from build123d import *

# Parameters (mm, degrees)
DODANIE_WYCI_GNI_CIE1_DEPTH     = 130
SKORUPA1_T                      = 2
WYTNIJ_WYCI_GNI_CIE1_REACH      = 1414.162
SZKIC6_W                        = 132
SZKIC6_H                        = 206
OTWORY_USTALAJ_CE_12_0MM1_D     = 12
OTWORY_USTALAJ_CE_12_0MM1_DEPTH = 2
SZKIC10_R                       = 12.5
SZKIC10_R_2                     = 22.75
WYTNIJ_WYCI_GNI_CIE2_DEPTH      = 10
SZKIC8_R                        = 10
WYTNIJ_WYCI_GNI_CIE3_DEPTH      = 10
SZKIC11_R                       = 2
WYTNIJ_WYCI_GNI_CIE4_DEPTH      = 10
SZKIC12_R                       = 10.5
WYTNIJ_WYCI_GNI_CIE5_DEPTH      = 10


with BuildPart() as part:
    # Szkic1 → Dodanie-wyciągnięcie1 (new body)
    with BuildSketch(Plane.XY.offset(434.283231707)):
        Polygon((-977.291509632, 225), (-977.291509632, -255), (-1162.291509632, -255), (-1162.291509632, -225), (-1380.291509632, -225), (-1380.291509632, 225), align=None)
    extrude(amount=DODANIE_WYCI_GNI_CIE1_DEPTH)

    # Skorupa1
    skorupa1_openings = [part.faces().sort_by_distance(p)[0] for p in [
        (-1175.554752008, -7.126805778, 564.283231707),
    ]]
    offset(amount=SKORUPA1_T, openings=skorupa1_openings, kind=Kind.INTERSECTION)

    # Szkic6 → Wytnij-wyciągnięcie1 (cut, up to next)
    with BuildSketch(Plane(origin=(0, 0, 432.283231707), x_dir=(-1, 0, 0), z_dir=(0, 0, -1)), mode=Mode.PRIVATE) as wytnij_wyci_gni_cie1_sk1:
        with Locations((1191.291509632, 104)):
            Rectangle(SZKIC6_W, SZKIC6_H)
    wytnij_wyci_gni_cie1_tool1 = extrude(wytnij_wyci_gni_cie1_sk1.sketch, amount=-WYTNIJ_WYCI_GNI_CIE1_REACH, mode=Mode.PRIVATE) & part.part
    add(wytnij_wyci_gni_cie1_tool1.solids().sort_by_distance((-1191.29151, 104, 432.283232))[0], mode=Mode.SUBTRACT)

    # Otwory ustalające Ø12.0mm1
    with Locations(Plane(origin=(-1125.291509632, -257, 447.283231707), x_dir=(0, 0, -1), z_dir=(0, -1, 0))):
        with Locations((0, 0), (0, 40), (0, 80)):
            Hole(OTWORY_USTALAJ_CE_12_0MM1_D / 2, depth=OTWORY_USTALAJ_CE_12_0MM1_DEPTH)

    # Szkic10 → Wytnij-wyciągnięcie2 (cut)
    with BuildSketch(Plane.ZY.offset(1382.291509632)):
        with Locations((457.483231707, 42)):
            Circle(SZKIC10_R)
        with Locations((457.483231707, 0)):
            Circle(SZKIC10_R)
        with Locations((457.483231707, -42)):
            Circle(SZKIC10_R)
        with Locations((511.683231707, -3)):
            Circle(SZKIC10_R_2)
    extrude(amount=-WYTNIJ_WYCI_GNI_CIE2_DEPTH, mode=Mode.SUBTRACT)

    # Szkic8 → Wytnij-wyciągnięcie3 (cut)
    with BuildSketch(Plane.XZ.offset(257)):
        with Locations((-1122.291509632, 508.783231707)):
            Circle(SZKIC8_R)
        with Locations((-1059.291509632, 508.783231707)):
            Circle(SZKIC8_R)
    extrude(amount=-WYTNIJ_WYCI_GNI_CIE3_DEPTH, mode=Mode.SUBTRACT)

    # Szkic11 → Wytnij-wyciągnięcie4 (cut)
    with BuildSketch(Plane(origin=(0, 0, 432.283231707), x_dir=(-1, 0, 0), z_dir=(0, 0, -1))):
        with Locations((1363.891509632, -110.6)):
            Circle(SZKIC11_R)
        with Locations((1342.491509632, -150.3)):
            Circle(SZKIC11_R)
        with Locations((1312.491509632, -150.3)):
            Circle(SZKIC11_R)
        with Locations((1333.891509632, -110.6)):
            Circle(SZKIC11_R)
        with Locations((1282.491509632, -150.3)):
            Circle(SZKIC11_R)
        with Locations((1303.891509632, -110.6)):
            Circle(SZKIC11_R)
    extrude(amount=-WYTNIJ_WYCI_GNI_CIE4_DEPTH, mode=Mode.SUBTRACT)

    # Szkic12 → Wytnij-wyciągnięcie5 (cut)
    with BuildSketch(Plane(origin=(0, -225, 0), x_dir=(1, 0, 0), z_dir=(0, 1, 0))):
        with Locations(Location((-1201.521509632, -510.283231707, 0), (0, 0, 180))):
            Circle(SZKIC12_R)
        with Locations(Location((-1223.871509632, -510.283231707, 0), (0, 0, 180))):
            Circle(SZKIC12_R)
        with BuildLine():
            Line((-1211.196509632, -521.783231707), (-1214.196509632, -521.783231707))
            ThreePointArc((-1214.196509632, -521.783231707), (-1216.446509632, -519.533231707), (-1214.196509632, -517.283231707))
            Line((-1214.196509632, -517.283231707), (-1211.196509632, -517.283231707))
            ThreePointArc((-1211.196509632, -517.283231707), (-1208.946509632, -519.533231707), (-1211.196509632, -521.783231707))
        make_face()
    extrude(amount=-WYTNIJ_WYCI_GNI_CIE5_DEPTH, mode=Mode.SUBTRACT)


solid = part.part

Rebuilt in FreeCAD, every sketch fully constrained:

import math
import FreeCAD as App
import Part
import Sketcher
Q = App.Units.Quantity


def faces_at(feature, points):
    """Names of the faces that lie closest to the given points."""
    faces = feature.Shape.Faces
    near = lambda p: min(range(len(faces)), key=lambda i: faces[i].distToShape(Part.Vertex(*p))[0])
    return sorted({f"Face{near(p) + 1}" for p in points})

doc = App.newDocument("Part")
body = doc.addObject("PartDesign::Body", "Body")

# Sketch on XY plane
sketch1 = doc.addObject("Sketcher::SketchObject", "Sketch")
body.addObject(sketch1)
sketch1.AttachmentSupport = (doc.XY_Plane, [""])
sketch1.MapMode = "FlatFace"
sketch1.AttachmentOffset = App.Placement(App.Vector(0, 0, 434.283232), App.Rotation())
sketch1.addGeometry([
    Part.LineSegment(App.Vector(-977, -255, 0), App.Vector(-977, 225, 0)),  # 0
    Part.LineSegment(App.Vector(-977, 225, 0), App.Vector(-1380, 225, 0)),  # 1
    Part.LineSegment(App.Vector(-1380, 225, 0), App.Vector(-1380, -225, 0)),  # 2
    Part.LineSegment(App.Vector(-1380, -225, 0), App.Vector(-1162, -225, 0)),  # 3
    Part.LineSegment(App.Vector(-1162, -225, 0), App.Vector(-1162, -255, 0)),  # 4
    Part.LineSegment(App.Vector(-1162, -255, 0), App.Vector(-977, -255, 0)),  # 5
], False)
sketch1.addConstraint([
    Sketcher.Constraint("Coincident", 0, 2, 1, 1),
    Sketcher.Constraint("Coincident", 1, 2, 2, 1),
    Sketcher.Constraint("Coincident", 2, 2, 3, 1),
    Sketcher.Constraint("Coincident", 3, 2, 4, 1),
    Sketcher.Constraint("Coincident", 4, 2, 5, 1),
    Sketcher.Constraint("Coincident", 5, 2, 0, 1),
    Sketcher.Constraint("Vertical", 0),
    Sketcher.Constraint("Horizontal", 1),
    Sketcher.Constraint("Vertical", 2),
    Sketcher.Constraint("Horizontal", 3),
    Sketcher.Constraint("Vertical", 4),
    Sketcher.Constraint("Horizontal", 5),
    Sketcher.Constraint("DistanceX", 1, 2, 1, 1, Q("403 mm")),
    Sketcher.Constraint("DistanceX", 3, 1, 3, 2, Q("218 mm")),
    Sketcher.Constraint("DistanceY", 0, 1, 0, 2, Q("480 mm")),
    Sketcher.Constraint("DistanceY", 2, 2, 2, 1, Q("450 mm")),
    Sketcher.Constraint("DistanceY", -1, 1, 0, 2, Q("225 mm")),
    Sketcher.Constraint("DistanceX", 0, 2, -1, 1, Q("977.29151 mm")),
])
pad1 = doc.addObject("PartDesign::Pad", "Pad")
body.addObject(pad1)
pad1.Profile = sketch1
pad1.Length = 130
doc.recompute()

thickness = doc.addObject("PartDesign::Thickness", "Thickness")
body.addObject(thickness)
thickness.Base = (pad1, faces_at(pad1, [(-1178.792, -15, 564.283)]))
thickness.Value = 2
thickness.Reversed = False
thickness.Join = "Intersection"

# Sketch on XY plane
sketch2 = doc.addObject("Sketcher::SketchObject", "Sketch001")
body.addObject(sketch2)
sketch2.AttachmentSupport = (doc.XY_Plane, [""])
sketch2.MapMode = "FlatFace"
sketch2.AttachmentOffset = App.Placement(App.Vector(0, 0, 432.283232), App.Rotation())
sketch2.addGeometry([
    Part.LineSegment(App.Vector(-1125, 207, 0), App.Vector(-1125, 1, 0)),
    Part.LineSegment(App.Vector(-1125, 1, 0), App.Vector(-1257, 1, 0)),
    Part.LineSegment(App.Vector(-1257, 1, 0), App.Vector(-1257, 207, 0)),
    Part.LineSegment(App.Vector(-1257, 207, 0), App.Vector(-1125, 207, 0)),
], False)
sketch2.addConstraint([
    Sketcher.Constraint("Coincident", 0, 2, 1, 1),
    Sketcher.Constraint("Coincident", 1, 2, 2, 1),
    Sketcher.Constraint("Coincident", 2, 2, 3, 1),
    Sketcher.Constraint("Coincident", 3, 2, 0, 1),
    Sketcher.Constraint("Vertical", 0),
    Sketcher.Constraint("Horizontal", 1),
    Sketcher.Constraint("Vertical", 2),
    Sketcher.Constraint("Horizontal", 3),
    Sketcher.Constraint("DistanceX", 1, 2, 1, 1, Q("132 mm")),
    Sketcher.Constraint("DistanceY", 0, 2, 0, 1, Q("206 mm")),
    Sketcher.Constraint("DistanceY", -1, 1, 0, 2, Q("1 mm")),
    Sketcher.Constraint("DistanceX", 0, 2, -1, 1, Q("1125.29151 mm")),
])
pocket1 = doc.addObject("PartDesign::Pocket", "Pocket")
body.addObject(pocket1)
pocket1.Profile = sketch2
pocket1.Type = "UpToFirst"
pocket1.Reversed = True

# Sketch on XZ plane
sketch3 = doc.addObject("Sketcher::SketchObject", "Sketch002")
body.addObject(sketch3)
sketch3.AttachmentSupport = (doc.XZ_Plane, [""])
sketch3.MapMode = "FlatFace"
sketch3.AttachmentOffset = App.Placement(App.Vector(0, 0, 257), App.Rotation())
sketch3.addGeometry([
    Part.Circle(App.Vector(-1125, 447, 0), App.Vector(0, 0, 1), 6),
    Part.Circle(App.Vector(-1085, 447, 0), App.Vector(0, 0, 1), 6),
    Part.Circle(App.Vector(-1045, 447, 0), App.Vector(0, 0, 1), 6),
], False)
sketch3.addConstraint([
    Sketcher.Constraint("Equal", 0, 1),
    Sketcher.Constraint("Equal", 1, 2),
    Sketcher.Constraint("Horizontal", 0, 3, 1, 3),
    Sketcher.Constraint("Horizontal", 1, 3, 2, 3),
    Sketcher.Constraint("Diameter", 0, Q("12 mm")),
    Sketcher.Constraint("DistanceX", 0, 3, 1, 3, Q("40 mm")),
    Sketcher.Constraint("DistanceX", 1, 3, 2, 3, Q("40 mm")),
    Sketcher.Constraint("DistanceX", 0, 3, -1, 1, Q("1125.29151 mm")),
    Sketcher.Constraint("DistanceY", -1, 1, 0, 3, Q("447.283232 mm")),
])
doc.recompute()
hole = doc.addObject("PartDesign::Hole", "Hole")
body.addObject(hole)
hole.Profile = sketch3
hole.ThreadType = "None"
hole.Diameter = 12
hole.DepthType = "Dimension"
hole.Depth = 2
hole.DrillPoint = "Flat"

# Sketch on YZ plane
sketch4 = doc.addObject("Sketcher::SketchObject", "Sketch003")
body.addObject(sketch4)
sketch4.AttachmentSupport = (doc.YZ_Plane, [""])
sketch4.MapMode = "FlatFace"
sketch4.AttachmentOffset = App.Placement(App.Vector(0, 0, -1382.29151), App.Rotation())
sketch4.addGeometry([
    Part.Circle(App.Vector(42, 457, 0), App.Vector(0, 0, 1), 12),
    Part.Circle(App.Vector(0, 457, 0), App.Vector(0, 0, 1), 12),
    Part.Circle(App.Vector(-42, 457, 0), App.Vector(0, 0, 1), 12),
    Part.Circle(App.Vector(-3, 512, 0), App.Vector(0, 0, 1), 23),
], False)
sketch4.addConstraint([
    Sketcher.Constraint("Equal", 0, 1),
    Sketcher.Constraint("Equal", 1, 2),
    Sketcher.Constraint("Symmetric", 0, 3, 2, 3, -2),
    Sketcher.Constraint("PointOnObject", 1, 3, -2),
    Sketcher.Constraint("Horizontal", 0, 3, 1, 3),
    Sketcher.Constraint("Diameter", 0, Q("25 mm")),
    Sketcher.Constraint("Diameter", 3, Q("45.5 mm")),
    Sketcher.Constraint("DistanceX", -1, 1, 0, 3, Q("42 mm")),
    Sketcher.Constraint("DistanceX", 3, 3, -1, 1, Q("3 mm")),
    Sketcher.Constraint("DistanceY", 1, 3, 3, 3, Q("54.2 mm")),
    Sketcher.Constraint("DistanceY", -1, 1, 0, 3, Q("457.483232 mm")),
])
pocket2 = doc.addObject("PartDesign::Pocket", "Pocket001")
body.addObject(pocket2)
pocket2.Profile = sketch4
pocket2.Length = 10
pocket2.Reversed = True

# Sketch on XZ plane
sketch5 = doc.addObject("Sketcher::SketchObject", "Sketch004")
body.addObject(sketch5)
sketch5.AttachmentSupport = (doc.XZ_Plane, [""])
sketch5.MapMode = "FlatFace"
sketch5.AttachmentOffset = App.Placement(App.Vector(0, 0, 257), App.Rotation())
sketch5.addGeometry([
    Part.Circle(App.Vector(-1122, 509, 0), App.Vector(0, 0, 1), 10),
    Part.Circle(App.Vector(-1059, 509, 0), App.Vector(0, 0, 1), 10),
], False)
sketch5.addConstraint([
    Sketcher.Constraint("Equal", 0, 1),
    Sketcher.Constraint("Horizontal", 0, 3, 1, 3),
    Sketcher.Constraint("Diameter", 0, Q("20 mm")),
    Sketcher.Constraint("DistanceX", 0, 3, 1, 3, Q("63 mm")),
    Sketcher.Constraint("DistanceX", 0, 3, -1, 1, Q("1122.29151 mm")),
    Sketcher.Constraint("DistanceY", -1, 1, 0, 3, Q("508.783232 mm")),
])
pocket3 = doc.addObject("PartDesign::Pocket", "Pocket002")
body.addObject(pocket3)
pocket3.Profile = sketch5
pocket3.Length = 10

# Sketch on XY plane
sketch6 = doc.addObject("Sketcher::SketchObject", "Sketch005")
body.addObject(sketch6)
sketch6.AttachmentSupport = (doc.XY_Plane, [""])
sketch6.MapMode = "FlatFace"
sketch6.AttachmentOffset = App.Placement(App.Vector(0, 0, 432.283232), App.Rotation())
sketch6.addGeometry([
    Part.Circle(App.Vector(-1363.9, -110.6, 0), App.Vector(0, 0, 1), 2),  # 0
    Part.Circle(App.Vector(-1342.5, -150.3, 0), App.Vector(0, 0, 1), 2),  # 1
    Part.Circle(App.Vector(-1312.5, -150.3, 0), App.Vector(0, 0, 1), 2),  # 2
    Part.Circle(App.Vector(-1333.9, -110.6, 0), App.Vector(0, 0, 1), 2),  # 3
    Part.Circle(App.Vector(-1282.5, -150.3, 0), App.Vector(0, 0, 1), 2),  # 4
    Part.Circle(App.Vector(-1303.9, -110.6, 0), App.Vector(0, 0, 1), 2),  # 5
], False)
sketch6.addConstraint([
    Sketcher.Constraint("Equal", 0, 1),
    Sketcher.Constraint("Equal", 1, 2),
    Sketcher.Constraint("Equal", 2, 3),
    Sketcher.Constraint("Equal", 3, 4),
    Sketcher.Constraint("Equal", 4, 5),
    Sketcher.Constraint("Horizontal", 1, 3, 2, 3),
    Sketcher.Constraint("Horizontal", 0, 3, 3, 3),
    Sketcher.Constraint("Horizontal", 2, 3, 4, 3),
    Sketcher.Constraint("Horizontal", 3, 3, 5, 3),
    Sketcher.Constraint("Diameter", 0, Q("4 mm")),
    Sketcher.Constraint("DistanceX", 1, 3, 2, 3, Q("30 mm")),
    Sketcher.Constraint("DistanceX", 0, 3, 3, 3, Q("30 mm")),
    Sketcher.Constraint("DistanceX", 2, 3, 4, 3, Q("30 mm")),
    Sketcher.Constraint("DistanceX", 3, 3, 5, 3, Q("30 mm")),
    Sketcher.Constraint("DistanceY", 0, 3, -1, 1, Q("110.6 mm")),
    Sketcher.Constraint("DistanceY", 1, 3, -1, 1, Q("150.3 mm")),
    Sketcher.Constraint("DistanceX", 0, 3, 1, 3, Q("21.4 mm")),
    Sketcher.Constraint("DistanceX", 0, 3, -1, 1, Q("1363.89151 mm")),
])
pocket4 = doc.addObject("PartDesign::Pocket", "Pocket003")
body.addObject(pocket4)
pocket4.Profile = sketch6
pocket4.Length = 10
pocket4.Reversed = True

# Sketch on XZ plane
sketch7 = doc.addObject("Sketcher::SketchObject", "Sketch006")
body.addObject(sketch7)
sketch7.AttachmentSupport = (doc.XZ_Plane, [""])
sketch7.MapMode = "FlatFace"
sketch7.AttachmentOffset = App.Placement(App.Vector(0, 0, 225), App.Rotation())
sketch7.addGeometry([
    Part.Circle(App.Vector(-1201.5, 510.3, 0), App.Vector(0, 0, 1), 10.5),  # 0
    Part.Circle(App.Vector(-1223.9, 510.3, 0), App.Vector(0, 0, 1), 10.5),  # 1
    Part.LineSegment(App.Vector(-1214.2, 521.8, 0), App.Vector(-1211.2, 521.8, 0)),  # 2
    Part.ArcOfCircle(Part.Circle(App.Vector(-1211.2, 519.5, 0), App.Vector(0, 0, 1), 2.2), math.radians(-90), math.radians(90)),  # 3
    Part.LineSegment(App.Vector(-1211.2, 517.3, 0), App.Vector(-1214.2, 517.3, 0)),  # 4
    Part.ArcOfCircle(Part.Circle(App.Vector(-1214.2, 519.5, 0), App.Vector(0, 0, 1), 2.2), math.radians(90), math.radians(270)),  # 5
], False)
sketch7.addConstraint([
    Sketcher.Constraint("Tangent", 2, 2, 3, 2),
    Sketcher.Constraint("Tangent", 3, 1, 4, 1),
    Sketcher.Constraint("Tangent", 4, 2, 5, 2),
    Sketcher.Constraint("Tangent", 5, 1, 2, 1),
    Sketcher.Constraint("Horizontal", 2),
    Sketcher.Constraint("Horizontal", 4),
    Sketcher.Constraint("Equal", 0, 1),
    Sketcher.Constraint("Horizontal", 0, 3, 1, 3),
    Sketcher.Constraint("Diameter", 0, Q("21 mm")),
    Sketcher.Constraint("DistanceX", 2, 1, 2, 2, Q("3 mm")),
    Sketcher.Constraint("Radius", 3, Q("2.25 mm")),
    Sketcher.Constraint("DistanceY", 0, 3, 3, 1, Q("7 mm")),
    Sketcher.Constraint("DistanceX", 1, 3, 0, 3, Q("22.35 mm")),
    Sketcher.Constraint("DistanceX", 3, 3, 0, 3, Q("9.675 mm")),
    Sketcher.Constraint("DistanceX", 0, 3, -1, 1, Q("1201.52151 mm")),
    Sketcher.Constraint("DistanceY", -1, 1, 0, 3, Q("510.283232 mm")),
])
pocket5 = doc.addObject("PartDesign::Pocket", "Pocket004")
body.addObject(pocket5)
pocket5.Profile = sketch7
pocket5.Length = 10
pocket5.Reversed = True

doc.recompute()
